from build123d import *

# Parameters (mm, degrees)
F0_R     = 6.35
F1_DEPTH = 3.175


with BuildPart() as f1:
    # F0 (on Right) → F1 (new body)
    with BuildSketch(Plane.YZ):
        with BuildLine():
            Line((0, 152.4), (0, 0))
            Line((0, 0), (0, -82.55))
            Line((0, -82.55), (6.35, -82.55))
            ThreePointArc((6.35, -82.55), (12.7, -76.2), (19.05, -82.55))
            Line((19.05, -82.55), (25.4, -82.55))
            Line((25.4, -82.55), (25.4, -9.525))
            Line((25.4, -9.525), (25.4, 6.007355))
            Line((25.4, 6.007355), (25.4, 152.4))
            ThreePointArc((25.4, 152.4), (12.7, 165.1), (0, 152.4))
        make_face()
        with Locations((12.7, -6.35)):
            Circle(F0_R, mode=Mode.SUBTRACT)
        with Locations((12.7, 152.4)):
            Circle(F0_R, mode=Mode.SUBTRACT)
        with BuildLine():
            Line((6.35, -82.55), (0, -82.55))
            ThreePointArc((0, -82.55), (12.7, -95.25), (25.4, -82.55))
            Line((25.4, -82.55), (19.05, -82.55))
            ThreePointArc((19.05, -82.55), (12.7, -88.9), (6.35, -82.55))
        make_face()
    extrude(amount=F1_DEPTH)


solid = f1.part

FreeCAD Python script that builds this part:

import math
import FreeCAD as App
import Part
import Sketcher
Q = App.Units.Quantity

doc = App.newDocument("Part")
body = doc.addObject("PartDesign::Body", "Body")

sketch1 = doc.addObject("Sketcher::SketchObject", "Sketch")
body.addObject(sketch1)
sketch1.AttachmentSupport = (doc.YZ_Plane, [""])
sketch1.MapMode = "FlatFace"
sketch1.addGeometry(Part.LineSegment(App.Vector(0, 152, 0), App.Vector(0, -83, 0)), False)
sketch1.addGeometry(Part.ArcOfCircle(Part.Circle(App.Vector(13, -83, 0), App.Vector(0, 0, 1), 13), math.radians(180), math.radians(360)), False)
sketch1.addGeometry(Part.LineSegment(App.Vector(25, -83, 0), App.Vector(25, 152, 0)), False)
sketch1.addGeometry(Part.ArcOfCircle(Part.Circle(App.Vector(13, 152, 0), App.Vector(0, 0, 1), 13), math.radians(0), math.radians(180)), False)
sketch1.addGeometry(Part.Circle(App.Vector(13, -83, 0), App.Vector(0, 0, 1), 6), False)
sketch1.addGeometry(Part.Circle(App.Vector(13, -6, 0), App.Vector(0, 0, 1), 6), False)
sketch1.addGeometry(Part.Circle(App.Vector(13, 152, 0), App.Vector(0, 0, 1), 6), False)
sketch1.addConstraint(Sketcher.Constraint("Tangent", 0, 2, 1, 1))
sketch1.addConstraint(Sketcher.Constraint("Tangent", 1, 2, 2, 1))
sketch1.addConstraint(Sketcher.Constraint("Tangent", 2, 2, 3, 1))
sketch1.addConstraint(Sketcher.Constraint("Tangent", 3, 2, 0, 1))
sketch1.addConstraint(Sketcher.Constraint("Vertical", 0))
sketch1.addConstraint(Sketcher.Constraint("Vertical", 2))
sketch1.addConstraint(Sketcher.Constraint("Coincident", 4, 3, 1, 3))
sketch1.addConstraint(Sketcher.Constraint("Coincident", 6, 3, 3, 3))
sketch1.addConstraint(Sketcher.Constraint("Equal", 4, 5))
sketch1.addConstraint(Sketcher.Constraint("Equal", 5, 6))
sketch1.addConstraint(Sketcher.Constraint("PointOnObject", 0, 2, -2))
sketch1.addConstraint(Sketcher.Constraint("Vertical", 4, 3, 5, 3))
sketch1.addConstraint(Sketcher.Constraint("Diameter", 4, Q("0.5 in")))
sketch1.addConstraint(Sketcher.Constraint("Radius", 1, Q("0.5 in")))
sketch1.addConstraint(Sketcher.Constraint("DistanceY", -1, 1, 3, 3, Q("6 in")))
sketch1.addConstraint(Sketcher.Constraint("DistanceY", 1, 3, 5, 3, Q("3 in")))
sketch1.addConstraint(Sketcher.Constraint("DistanceY", 0, 2, 0, 1, Q("9.25 in")))
pad1 = doc.addObject("PartDesign::Pad", "Pad")
body.addObject(pad1)
pad1.Profile = sketch1
pad1.Length = Q("0.125 in")

doc.recompute()
